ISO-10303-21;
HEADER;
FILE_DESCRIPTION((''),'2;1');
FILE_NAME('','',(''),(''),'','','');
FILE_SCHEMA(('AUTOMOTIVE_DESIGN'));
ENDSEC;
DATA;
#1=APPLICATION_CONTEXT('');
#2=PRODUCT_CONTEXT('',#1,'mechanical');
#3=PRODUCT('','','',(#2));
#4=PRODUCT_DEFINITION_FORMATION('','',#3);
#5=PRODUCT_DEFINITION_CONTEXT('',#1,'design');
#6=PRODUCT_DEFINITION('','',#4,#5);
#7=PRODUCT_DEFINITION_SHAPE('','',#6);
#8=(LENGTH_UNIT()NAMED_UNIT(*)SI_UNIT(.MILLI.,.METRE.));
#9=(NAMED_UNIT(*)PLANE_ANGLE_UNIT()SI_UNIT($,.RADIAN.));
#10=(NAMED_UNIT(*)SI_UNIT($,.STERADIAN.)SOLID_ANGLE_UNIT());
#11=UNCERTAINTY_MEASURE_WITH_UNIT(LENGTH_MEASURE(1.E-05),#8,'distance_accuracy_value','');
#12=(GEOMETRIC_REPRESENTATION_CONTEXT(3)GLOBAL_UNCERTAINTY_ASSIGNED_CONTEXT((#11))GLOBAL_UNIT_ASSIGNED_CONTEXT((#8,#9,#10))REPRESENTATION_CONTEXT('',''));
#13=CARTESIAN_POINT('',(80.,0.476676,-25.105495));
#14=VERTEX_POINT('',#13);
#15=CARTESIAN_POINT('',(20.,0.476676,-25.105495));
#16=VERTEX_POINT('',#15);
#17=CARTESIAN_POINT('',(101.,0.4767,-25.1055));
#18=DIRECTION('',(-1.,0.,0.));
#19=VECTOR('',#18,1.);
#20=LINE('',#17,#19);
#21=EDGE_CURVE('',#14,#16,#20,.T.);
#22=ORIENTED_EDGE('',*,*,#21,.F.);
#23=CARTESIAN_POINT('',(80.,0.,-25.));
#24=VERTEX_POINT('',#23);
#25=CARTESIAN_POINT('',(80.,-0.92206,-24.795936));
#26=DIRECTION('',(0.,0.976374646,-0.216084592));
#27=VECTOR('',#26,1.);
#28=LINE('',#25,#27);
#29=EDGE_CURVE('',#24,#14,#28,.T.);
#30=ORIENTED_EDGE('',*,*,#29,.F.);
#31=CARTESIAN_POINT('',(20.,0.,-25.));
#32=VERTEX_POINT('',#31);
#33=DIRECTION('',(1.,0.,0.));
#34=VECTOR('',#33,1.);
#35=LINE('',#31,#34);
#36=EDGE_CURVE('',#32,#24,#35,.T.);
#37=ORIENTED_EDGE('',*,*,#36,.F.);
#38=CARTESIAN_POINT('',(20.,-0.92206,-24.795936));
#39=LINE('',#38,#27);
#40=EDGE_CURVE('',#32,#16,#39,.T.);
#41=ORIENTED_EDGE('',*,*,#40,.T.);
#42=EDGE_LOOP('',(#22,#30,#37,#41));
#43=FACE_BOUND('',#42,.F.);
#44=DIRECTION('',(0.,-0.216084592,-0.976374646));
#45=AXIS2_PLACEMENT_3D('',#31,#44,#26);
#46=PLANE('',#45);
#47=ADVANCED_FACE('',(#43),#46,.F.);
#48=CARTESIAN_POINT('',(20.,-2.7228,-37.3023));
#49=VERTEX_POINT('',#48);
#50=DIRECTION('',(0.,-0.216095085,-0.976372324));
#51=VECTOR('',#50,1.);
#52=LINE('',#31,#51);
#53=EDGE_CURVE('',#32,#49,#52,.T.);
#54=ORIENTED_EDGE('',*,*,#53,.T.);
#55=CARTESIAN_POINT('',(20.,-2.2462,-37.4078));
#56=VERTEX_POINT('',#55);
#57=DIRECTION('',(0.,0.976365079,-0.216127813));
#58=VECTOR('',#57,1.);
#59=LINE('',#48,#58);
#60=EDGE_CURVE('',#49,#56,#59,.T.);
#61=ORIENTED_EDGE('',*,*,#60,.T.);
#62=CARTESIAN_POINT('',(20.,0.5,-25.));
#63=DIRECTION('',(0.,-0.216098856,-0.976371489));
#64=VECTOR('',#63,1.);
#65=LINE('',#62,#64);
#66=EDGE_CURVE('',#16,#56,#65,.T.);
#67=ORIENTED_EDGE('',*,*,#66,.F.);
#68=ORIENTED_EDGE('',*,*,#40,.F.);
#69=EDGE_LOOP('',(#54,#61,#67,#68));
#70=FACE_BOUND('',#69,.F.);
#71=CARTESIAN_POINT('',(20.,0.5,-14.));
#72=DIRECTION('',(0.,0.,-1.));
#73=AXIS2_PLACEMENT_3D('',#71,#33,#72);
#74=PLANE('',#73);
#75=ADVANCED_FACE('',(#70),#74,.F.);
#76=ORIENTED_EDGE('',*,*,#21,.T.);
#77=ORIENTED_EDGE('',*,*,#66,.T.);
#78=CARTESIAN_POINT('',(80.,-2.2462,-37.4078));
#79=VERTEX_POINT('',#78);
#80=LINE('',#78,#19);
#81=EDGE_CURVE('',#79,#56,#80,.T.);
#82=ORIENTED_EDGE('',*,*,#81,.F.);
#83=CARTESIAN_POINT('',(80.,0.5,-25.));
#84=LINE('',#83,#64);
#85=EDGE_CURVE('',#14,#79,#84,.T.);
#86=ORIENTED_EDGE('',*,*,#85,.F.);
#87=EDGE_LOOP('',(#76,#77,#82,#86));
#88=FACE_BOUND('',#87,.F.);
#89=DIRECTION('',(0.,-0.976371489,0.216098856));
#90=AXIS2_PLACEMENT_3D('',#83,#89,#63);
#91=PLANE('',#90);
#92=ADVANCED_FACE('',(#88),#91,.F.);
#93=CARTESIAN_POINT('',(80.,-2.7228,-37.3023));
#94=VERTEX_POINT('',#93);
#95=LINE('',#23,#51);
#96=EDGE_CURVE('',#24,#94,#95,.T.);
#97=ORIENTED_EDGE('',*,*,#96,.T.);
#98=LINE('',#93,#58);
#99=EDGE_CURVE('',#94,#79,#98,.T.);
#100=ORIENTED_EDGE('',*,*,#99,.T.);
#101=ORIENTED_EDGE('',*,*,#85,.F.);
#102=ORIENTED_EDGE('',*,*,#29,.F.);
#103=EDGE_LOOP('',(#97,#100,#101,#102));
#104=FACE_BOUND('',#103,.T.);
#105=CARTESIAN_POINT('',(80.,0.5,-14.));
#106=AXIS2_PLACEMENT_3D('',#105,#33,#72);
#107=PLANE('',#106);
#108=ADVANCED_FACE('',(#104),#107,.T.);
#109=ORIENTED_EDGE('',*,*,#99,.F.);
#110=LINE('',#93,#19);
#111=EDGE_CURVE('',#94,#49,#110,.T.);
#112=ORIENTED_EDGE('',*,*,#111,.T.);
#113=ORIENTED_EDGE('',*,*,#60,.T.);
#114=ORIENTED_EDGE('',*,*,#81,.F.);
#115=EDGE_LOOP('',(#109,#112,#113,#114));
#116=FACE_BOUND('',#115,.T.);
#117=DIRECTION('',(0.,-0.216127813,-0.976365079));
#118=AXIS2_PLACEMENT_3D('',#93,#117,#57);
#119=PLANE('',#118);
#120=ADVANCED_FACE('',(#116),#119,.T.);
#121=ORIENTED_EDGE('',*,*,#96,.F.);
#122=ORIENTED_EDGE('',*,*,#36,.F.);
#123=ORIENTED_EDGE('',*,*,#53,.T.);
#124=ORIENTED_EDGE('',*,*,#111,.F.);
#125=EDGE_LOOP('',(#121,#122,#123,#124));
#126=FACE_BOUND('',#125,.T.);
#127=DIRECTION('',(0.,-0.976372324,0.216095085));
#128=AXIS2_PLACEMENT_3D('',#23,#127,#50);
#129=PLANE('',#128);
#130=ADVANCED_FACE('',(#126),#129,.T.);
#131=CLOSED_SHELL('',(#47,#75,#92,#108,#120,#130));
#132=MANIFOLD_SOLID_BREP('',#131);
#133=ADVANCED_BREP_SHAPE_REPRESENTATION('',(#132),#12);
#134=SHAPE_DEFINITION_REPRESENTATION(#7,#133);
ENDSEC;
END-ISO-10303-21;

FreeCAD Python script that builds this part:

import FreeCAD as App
import Part
import Sketcher

V = App.Vector
Q = App.Units.Quantity


def add_polygon(sketch, points):
    """Adds a closed chain of lines whose ends are joined by coincident constraints."""
    first, n = sketch.GeometryCount, len(points)
    for a, b in zip(points, points[1:] + points[:1]):
        sketch.addGeometry(Part.LineSegment(App.Vector(*a, 0), App.Vector(*b, 0)), False)
    for i in range(n):
        sketch.addConstraint(Sketcher.Constraint("Coincident", first + i, 2, first + (i + 1) % n, 1))

doc = App.newDocument("Part")
body = doc.addObject("PartDesign::Body", "Body")

# Sketch on XZ plane
sketch1 = body.newObject("Sketcher::SketchObject", "Sketch")
sketch1.AttachmentSupport = (doc.getObject("XZ_Plane"), [""])
sketch1.MapMode = "FlatFace"
add_polygon(sketch1, [(0, -14), (0, 0), (100, 0), (100, -14)])  # lines 0-3
sketch1.addConstraint([
    Sketcher.Constraint("Vertical", 0),
    Sketcher.Constraint("Horizontal", 1),
    Sketcher.Constraint("Vertical", 2),
    Sketcher.Constraint("Horizontal", 3),
    Sketcher.Constraint("Coincident", 0, 2, -1, 1),
    Sketcher.Constraint("DistanceX", 1, 1, 1, 2, 100.0),
    Sketcher.Constraint("DistanceY", 0, 1, 0, 2, 14.0),
])
pad1 = body.newObject("PartDesign::Pad", "Pad")
pad1.Profile = sketch1
pad1.Length = 0.5
pad1.Reversed = True

# Sketch on XZ plane
sketch2 = body.newObject("Sketcher::SketchObject", "Sketch001")
sketch2.AttachmentSupport = (doc.getObject("XZ_Plane"), [""])
sketch2.MapMode = "FlatFace"
sketch2.AttachmentOffset = App.Placement(V(0, 0, -0.5), App.Rotation())
add_polygon(sketch2, [(20, -14), (80, -14), (80, -25), (20, -25)])  # lines 0-3
sketch2.addConstraint([
    Sketcher.Constraint("Horizontal", 0),
    Sketcher.Constraint("Vertical", 1),
    Sketcher.Constraint("Horizontal", 2),
    Sketcher.Constraint("Vertical", 3),
    Sketcher.Constraint("DistanceX", 0, 1, 0, 2, 60.0),
    Sketcher.Constraint("DistanceY", 1, 2, 1, 1, 11.0),
    Sketcher.Constraint("DistanceX", -1, 1, 0, 2, 80.0),
    Sketcher.Constraint("DistanceY", 0, 2, -1, 1, 14.0),
])
pad2 = body.newObject("PartDesign::Pad", "Pad001")
pad2.Profile = sketch2
pad2.Length = 0.5

# Sketch on YZ plane
sketch3 = body.newObject("Sketcher::SketchObject", "Sketch002")
sketch3.AttachmentSupport = (doc.getObject("YZ_Plane"), [""])
sketch3.MapMode = "FlatFace"
sketch3.AttachmentOffset = App.Placement(V(0, 0, 80), App.Rotation())
add_polygon(sketch3, [(-2.25, -37.41), (0.5, -25), (0, -25), (-2.72, -37.3)])  # lines 0-3
sketch3.addConstraint([
    Sketcher.Constraint("Horizontal", 1),
    Sketcher.Constraint("PointOnObject", 1, 2, -2),
    Sketcher.Constraint("Parallel", 0, 2),
    Sketcher.Constraint("Perpendicular", 2, 3),
    Sketcher.Constraint("Distance", 2, 12.6),
    Sketcher.Constraint("DistanceX", 1, 2, 1, 1, 0.5),
    Sketcher.Constraint("DistanceY", 0, 2, -1, 1, 25.0),
    Sketcher.Constraint("Angle", 0, Q("77.52 deg")),
])
pad3 = body.newObject("PartDesign::Pad", "Pad002")
pad3.Profile = sketch3
pad3.Length = 60
pad3.Reversed = True

# Sketch on YZ plane
sketch4 = body.newObject("Sketcher::SketchObject", "Sketch003")
sketch4.AttachmentSupport = (doc.getObject("YZ_Plane"), [""])
sketch4.MapMode = "FlatFace"
sketch4.AttachmentOffset = App.Placement(V(0, 0, 20), App.Rotation())
add_polygon(sketch4, [(0.5, -25), (0.48, -25.11), (0, -25), (0, 0), (0.5, 0)])  # lines 0-4
sketch4.addConstraint([
    Sketcher.Constraint("Vertical", 2),
    Sketcher.Constraint("Horizontal", 3),
    Sketcher.Constraint("Vertical", 4),
    Sketcher.Constraint("Coincident", 2, 2, -1, 1),
    Sketcher.Constraint("Perpendicular", 0, 1),
    Sketcher.Constraint("Horizontal", 1, 2, 4, 2),
    Sketcher.Constraint("DistanceY", 2, 1, 2, 2, 25.0),
    Sketcher.Constraint("DistanceX", 3, 1, 3, 2, 0.5),
    Sketcher.Constraint("Angle", 0, Q("-102.48 deg")),
])
pocket1 = body.newObject("PartDesign::Pocket", "Pocket")
pocket1.Profile = sketch4
pocket1.Type = "ThroughAll"
pocket1.Midplane = True

doc.recompute()
